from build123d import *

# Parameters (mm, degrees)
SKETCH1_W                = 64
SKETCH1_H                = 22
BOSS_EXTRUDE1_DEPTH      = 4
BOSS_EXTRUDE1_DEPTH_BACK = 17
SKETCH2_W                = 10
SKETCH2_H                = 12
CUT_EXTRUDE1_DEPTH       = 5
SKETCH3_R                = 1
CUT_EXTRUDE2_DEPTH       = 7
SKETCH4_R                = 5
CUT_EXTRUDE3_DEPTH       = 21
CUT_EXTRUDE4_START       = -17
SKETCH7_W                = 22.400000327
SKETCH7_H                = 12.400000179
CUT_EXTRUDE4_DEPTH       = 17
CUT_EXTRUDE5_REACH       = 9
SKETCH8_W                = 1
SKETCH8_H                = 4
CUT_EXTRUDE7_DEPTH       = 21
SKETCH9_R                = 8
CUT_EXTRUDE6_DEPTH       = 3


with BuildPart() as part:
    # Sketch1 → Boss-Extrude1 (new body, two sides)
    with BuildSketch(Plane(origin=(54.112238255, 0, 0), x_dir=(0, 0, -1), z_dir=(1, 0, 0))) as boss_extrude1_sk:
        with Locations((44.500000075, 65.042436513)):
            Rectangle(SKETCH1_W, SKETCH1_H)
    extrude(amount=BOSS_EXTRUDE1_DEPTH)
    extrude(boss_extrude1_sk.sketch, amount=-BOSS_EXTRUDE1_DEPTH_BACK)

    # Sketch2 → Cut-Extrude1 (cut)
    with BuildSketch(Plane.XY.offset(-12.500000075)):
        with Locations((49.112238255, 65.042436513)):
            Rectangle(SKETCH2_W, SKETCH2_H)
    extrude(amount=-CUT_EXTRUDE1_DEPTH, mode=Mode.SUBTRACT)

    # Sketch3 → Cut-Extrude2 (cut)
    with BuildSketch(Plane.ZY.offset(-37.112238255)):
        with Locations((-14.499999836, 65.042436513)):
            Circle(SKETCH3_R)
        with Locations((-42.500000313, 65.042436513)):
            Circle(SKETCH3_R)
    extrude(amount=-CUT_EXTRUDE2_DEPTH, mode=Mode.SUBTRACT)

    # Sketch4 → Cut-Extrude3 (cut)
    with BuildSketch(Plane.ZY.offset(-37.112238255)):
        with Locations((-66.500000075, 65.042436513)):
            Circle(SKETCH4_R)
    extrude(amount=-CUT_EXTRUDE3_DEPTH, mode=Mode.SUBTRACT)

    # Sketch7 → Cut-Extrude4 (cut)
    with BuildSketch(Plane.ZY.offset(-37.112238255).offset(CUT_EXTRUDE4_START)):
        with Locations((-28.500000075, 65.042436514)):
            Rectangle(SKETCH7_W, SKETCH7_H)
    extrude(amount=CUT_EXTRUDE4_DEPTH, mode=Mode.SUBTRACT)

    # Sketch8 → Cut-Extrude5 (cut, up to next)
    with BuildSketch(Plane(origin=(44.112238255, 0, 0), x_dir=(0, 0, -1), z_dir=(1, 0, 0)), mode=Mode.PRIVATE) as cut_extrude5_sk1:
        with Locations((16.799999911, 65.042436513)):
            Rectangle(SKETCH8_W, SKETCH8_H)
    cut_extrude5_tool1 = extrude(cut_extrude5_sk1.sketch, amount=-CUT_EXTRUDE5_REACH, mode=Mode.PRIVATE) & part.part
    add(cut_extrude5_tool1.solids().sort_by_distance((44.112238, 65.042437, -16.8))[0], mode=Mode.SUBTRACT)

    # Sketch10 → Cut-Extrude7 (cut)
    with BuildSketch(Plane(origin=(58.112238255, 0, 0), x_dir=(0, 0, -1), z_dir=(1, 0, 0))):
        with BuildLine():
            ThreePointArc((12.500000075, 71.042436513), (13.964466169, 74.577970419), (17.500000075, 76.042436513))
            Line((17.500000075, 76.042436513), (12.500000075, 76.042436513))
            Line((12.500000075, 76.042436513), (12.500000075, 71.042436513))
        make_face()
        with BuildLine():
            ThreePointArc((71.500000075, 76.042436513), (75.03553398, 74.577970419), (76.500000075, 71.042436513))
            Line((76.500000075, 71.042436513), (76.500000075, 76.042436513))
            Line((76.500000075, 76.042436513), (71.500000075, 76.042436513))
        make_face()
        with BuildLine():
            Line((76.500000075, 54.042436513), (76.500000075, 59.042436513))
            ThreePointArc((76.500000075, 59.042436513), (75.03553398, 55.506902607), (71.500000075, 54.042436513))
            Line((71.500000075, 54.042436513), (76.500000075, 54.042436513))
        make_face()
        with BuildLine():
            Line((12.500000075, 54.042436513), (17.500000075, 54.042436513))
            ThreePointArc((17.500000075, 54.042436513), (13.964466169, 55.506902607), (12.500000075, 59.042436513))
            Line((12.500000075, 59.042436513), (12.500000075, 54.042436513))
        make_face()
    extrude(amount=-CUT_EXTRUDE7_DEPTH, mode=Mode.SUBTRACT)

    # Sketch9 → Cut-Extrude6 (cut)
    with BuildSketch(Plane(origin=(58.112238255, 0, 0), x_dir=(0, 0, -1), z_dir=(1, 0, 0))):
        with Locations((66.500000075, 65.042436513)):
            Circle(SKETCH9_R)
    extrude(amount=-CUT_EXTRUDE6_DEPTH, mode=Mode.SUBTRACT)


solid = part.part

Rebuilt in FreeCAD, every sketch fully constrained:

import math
import FreeCAD as App
import Part
import Sketcher


def add_polygon(sketch, points):
    """Adds a closed chain of lines whose ends are joined by coincident constraints."""
    first, n = sketch.GeometryCount, len(points)
    for a, b in zip(points, points[1:] + points[:1]):
        sketch.addGeometry(Part.LineSegment(App.Vector(*a, 0), App.Vector(*b, 0)), False)
    for i in range(n):
        sketch.addConstraint(Sketcher.Constraint("Coincident", first + i, 2, first + (i + 1) % n, 1))

doc = App.newDocument("Part")
body = doc.addObject("PartDesign::Body", "Body")

# Sketch on YZ plane
sketch1 = body.newObject("Sketcher::SketchObject", "Sketch")
sketch1.AttachmentSupport = (doc.getObject("YZ_Plane"), [""])
sketch1.MapMode = "FlatFace"
sketch1.AttachmentOffset = App.Placement(App.Vector(0, 0, 54.112238), App.Rotation())
add_polygon(sketch1, [(76, -13), (54, -13), (54, -77), (76, -77)])  # lines 0-3
sketch1.addConstraint(Sketcher.Constraint("Horizontal", 0))
sketch1.addConstraint(Sketcher.Constraint("Vertical", 1))
sketch1.addConstraint(Sketcher.Constraint("Horizontal", 2))
sketch1.addConstraint(Sketcher.Constraint("Vertical", 3))
sketch1.addConstraint(Sketcher.Constraint("DistanceX", 0, 2, 0, 1, 22.0))
sketch1.addConstraint(Sketcher.Constraint("DistanceY", 1, 2, 1, 1, 64.0))
sketch1.addConstraint(Sketcher.Constraint("DistanceY", 0, 2, -1, 1, 12.5))
sketch1.addConstraint(Sketcher.Constraint("DistanceX", -1, 1, 0, 2, 54.042437))
pad1 = body.newObject("PartDesign::Pad", "Pad")
pad1.Profile = sketch1
pad1.Type = "TwoLengths"
pad1.Length = 4
pad1.Length2 = 17

# Sketch on XY plane
sketch2 = body.newObject("Sketcher::SketchObject", "Sketch001")
sketch2.AttachmentSupport = (doc.getObject("XY_Plane"), [""])
sketch2.MapMode = "FlatFace"
sketch2.AttachmentOffset = App.Placement(App.Vector(0, 0, -12.5), App.Rotation())
add_polygon(sketch2, [(44, 71), (44, 59), (54, 59), (54, 71)])  # lines 0-3
sketch2.addConstraint(Sketcher.Constraint("Vertical", 0))
sketch2.addConstraint(Sketcher.Constraint("Horizontal", 1))
sketch2.addConstraint(Sketcher.Constraint("Vertical", 2))
sketch2.addConstraint(Sketcher.Constraint("Horizontal", 3))
sketch2.addConstraint(Sketcher.Constraint("DistanceX", 1, 1, 1, 2, 10.0))
sketch2.addConstraint(Sketcher.Constraint("DistanceY", 0, 2, 0, 1, 12.0))
sketch2.addConstraint(Sketcher.Constraint("DistanceX", -1, 1, 0, 2, 44.112238))
sketch2.addConstraint(Sketcher.Constraint("DistanceY", -1, 1, 0, 2, 59.042437))
pocket1 = body.newObject("PartDesign::Pocket", "Pocket")
pocket1.Profile = sketch2
pocket1.Length = 5

# Sketch on YZ plane
sketch3 = body.newObject("Sketcher::SketchObject", "Sketch002")
sketch3.AttachmentSupport = (doc.getObject("YZ_Plane"), [""])
sketch3.MapMode = "FlatFace"
sketch3.AttachmentOffset = App.Placement(App.Vector(0, 0, 37.112238), App.Rotation())
sketch3.addGeometry(Part.Circle(App.Vector(65, -14.5, 0), App.Vector(0, 0, 1), 1), False)
sketch3.addGeometry(Part.Circle(App.Vector(65, -42.5, 0), App.Vector(0, 0, 1), 1), False)
sketch3.addConstraint(Sketcher.Constraint("Equal", 0, 1))
sketch3.addConstraint(Sketcher.Constraint("Vertical", 0, 3, 1, 3))
sketch3.addConstraint(Sketcher.Constraint("Diameter", 0, 2.0))
sketch3.addConstraint(Sketcher.Constraint("DistanceY", 1, 3, 0, 3, 28.0))
sketch3.addConstraint(Sketcher.Constraint("DistanceY", 0, 3, -1, 1, 14.5))
sketch3.addConstraint(Sketcher.Constraint("DistanceX", -1, 1, 0, 3, 65.042437))
pocket2 = body.newObject("PartDesign::Pocket", "Pocket001")
pocket2.Profile = sketch3
pocket2.Length = 7
pocket2.Reversed = True

# Sketch on YZ plane
sketch4 = body.newObject("Sketcher::SketchObject", "Sketch003")
sketch4.AttachmentSupport = (doc.getObject("YZ_Plane"), [""])
sketch4.MapMode = "FlatFace"
sketch4.AttachmentOffset = App.Placement(App.Vector(0, 0, 37.112238), App.Rotation())
sketch4.addGeometry(Part.Circle(App.Vector(65, -67, 0), App.Vector(0, 0, 1), 5), False)
sketch4.addConstraint(Sketcher.Constraint("Diameter", 0, 10.0))
sketch4.addConstraint(Sketcher.Constraint("DistanceY", 0, 3, -1, 1, 66.5))
sketch4.addConstraint(Sketcher.Constraint("DistanceX", -1, 1, 0, 3, 65.042437))
pocket3 = body.newObject("PartDesign::Pocket", "Pocket002")
pocket3.Profile = sketch4
pocket3.Length = 21
pocket3.Reversed = True

# Sketch on YZ plane
sketch5 = body.newObject("Sketcher::SketchObject", "Sketch004")
sketch5.AttachmentSupport = (doc.getObject("YZ_Plane"), [""])
sketch5.MapMode = "FlatFace"
sketch5.AttachmentOffset = App.Placement(App.Vector(0, 0, 54.112238), App.Rotation())
add_polygon(sketch5, [(71, -40), (59, -40), (59, -17), (71, -17)])  # lines 0-3
sketch5.addConstraint(Sketcher.Constraint("Horizontal", 0))
sketch5.addConstraint(Sketcher.Constraint("Vertical", 1))
sketch5.addConstraint(Sketcher.Constraint("Horizontal", 2))
sketch5.addConstraint(Sketcher.Constraint("Vertical", 3))
sketch5.addConstraint(Sketcher.Constraint("DistanceX", 0, 2, 0, 1, 12.4))
sketch5.addConstraint(Sketcher.Constraint("DistanceY", 1, 1, 1, 2, 22.4))
sketch5.addConstraint(Sketcher.Constraint("DistanceY", 0, 2, -1, 1, 39.7))
sketch5.addConstraint(Sketcher.Constraint("DistanceX", -1, 1, 0, 2, 58.842436))
pocket4 = body.newObject("PartDesign::Pocket", "Pocket003")
pocket4.Profile = sketch5
pocket4.Length = 17

# Sketch on YZ plane
sketch6 = body.newObject("Sketcher::SketchObject", "Sketch005")
sketch6.AttachmentSupport = (doc.getObject("YZ_Plane"), [""])
sketch6.MapMode = "FlatFace"
sketch6.AttachmentOffset = App.Placement(App.Vector(0, 0, 44.112238), App.Rotation())
add_polygon(sketch6, [(67, -16.3), (63, -16.3), (63, -17.3), (67, -17.3)])  # lines 0-3
sketch6.addConstraint(Sketcher.Constraint("Horizontal", 0))
sketch6.addConstraint(Sketcher.Constraint("Vertical", 1))
sketch6.addConstraint(Sketcher.Constraint("Horizontal", 2))
sketch6.addConstraint(Sketcher.Constraint("Vertical", 3))
sketch6.addConstraint(Sketcher.Constraint("DistanceX", 0, 2, 0, 1, 4.0))
sketch6.addConstraint(Sketcher.Constraint("DistanceY", 1, 2, 1, 1, 1.0))
sketch6.addConstraint(Sketcher.Constraint("DistanceY", 0, 2, -1, 1, 16.3))
sketch6.addConstraint(Sketcher.Constraint("DistanceX", -1, 1, 0, 2, 63.042437))
pocket5 = body.newObject("PartDesign::Pocket", "Pocket004")
pocket5.Profile = sketch6
pocket5.Type = "UpToFirst"

# Sketch on YZ plane
sketch7 = body.newObject("Sketcher::SketchObject", "Sketch006")
sketch7.AttachmentSupport = (doc.getObject("YZ_Plane"), [""])
sketch7.MapMode = "FlatFace"
sketch7.AttachmentOffset = App.Placement(App.Vector(0, 0, 58.112238), App.Rotation())
sketch7.addGeometry(Part.ArcOfCircle(Part.Circle(App.Vector(71, -17.5, 0), App.Vector(0, 0, 1), 5), math.radians(0), math.radians(90)), False)
sketch7.addGeometry(Part.LineSegment(App.Vector(76, -17.5, 0), App.Vector(76, -12.5, 0)), False)
sketch7.addGeometry(Part.LineSegment(App.Vector(76, -12.5, 0), App.Vector(71, -12.5, 0)), False)
sketch7.addGeometry(Part.ArcOfCircle(Part.Circle(App.Vector(71, -71.5, 0), App.Vector(0, 0, 1), 5), math.radians(-90), math.radians(0)), False)
sketch7.addGeometry(Part.LineSegment(App.Vector(71, -76.5, 0), App.Vector(76, -76.5, 0)), False)
sketch7.addGeometry(Part.LineSegment(App.Vector(76, -76.5, 0), App.Vector(76, -71.5, 0)), False)
sketch7.addGeometry(Part.LineSegment(App.Vector(54, -76.5, 0), App.Vector(59, -76.5, 0)), False)
sketch7.addGeometry(Part.ArcOfCircle(Part.Circle(App.Vector(59, -71.5, 0), App.Vector(0, 0, 1), 5), math.radians(-180), math.radians(-90)), False)
sketch7.addGeometry(Part.LineSegment(App.Vector(54, -71.5, 0), App.Vector(54, -76.5, 0)), False)
sketch7.addGeometry(Part.LineSegment(App.Vector(54, -12.5, 0), App.Vector(54, -17.5, 0)), False)
sketch7.addGeometry(Part.ArcOfCircle(Part.Circle(App.Vector(59, -17.5, 0), App.Vector(0, 0, 1), 5), math.radians(90), math.radians(180)), False)
sketch7.addGeometry(Part.LineSegment(App.Vector(59, -12.5, 0), App.Vector(54, -12.5, 0)), False)
sketch7.addConstraint(Sketcher.Constraint("Tangent", 0, 1, 1, 1))
sketch7.addConstraint(Sketcher.Constraint("Coincident", 1, 2, 2, 1))
sketch7.addConstraint(Sketcher.Constraint("Tangent", 2, 2, 0, 2))
sketch7.addConstraint(Sketcher.Constraint("Tangent", 3, 1, 4, 1))
sketch7.addConstraint(Sketcher.Constraint("Coincident", 4, 2, 5, 1))
sketch7.addConstraint(Sketcher.Constraint("Tangent", 5, 2, 3, 2))
sketch7.addConstraint(Sketcher.Constraint("Tangent", 6, 2, 7, 2))
sketch7.addConstraint(Sketcher.Constraint("Tangent", 7, 1, 8, 1))
sketch7.addConstraint(Sketcher.Constraint("Coincident", 8, 2, 6, 1))
sketch7.addConstraint(Sketcher.Constraint("Tangent", 9, 2, 10, 2))
sketch7.addConstraint(Sketcher.Constraint("Tangent", 10, 1, 11, 1))
sketch7.addConstraint(Sketcher.Constraint("Coincident", 11, 2, 9, 1))
sketch7.addConstraint(Sketcher.Constraint("Vertical", 1))
sketch7.addConstraint(Sketcher.Constraint("Horizontal", 2))
sketch7.addConstraint(Sketcher.Constraint("Horizontal", 4))
sketch7.addConstraint(Sketcher.Constraint("Vertical", 5))
sketch7.addConstraint(Sketcher.Constraint("Horizontal", 6))
sketch7.addConstraint(Sketcher.Constraint("Vertical", 8))
sketch7.addConstraint(Sketcher.Constraint("Vertical", 9))
sketch7.addConstraint(Sketcher.Constraint("Horizontal", 11))
sketch7.addConstraint(Sketcher.Constraint("Equal", 0, 3))
sketch7.addConstraint(Sketcher.Constraint("Equal", 3, 7))
sketch7.addConstraint(Sketcher.Constraint("Equal", 7, 10))
sketch7.addConstraint(Sketcher.Constraint("Horizontal", 3, 3, 7, 3))
sketch7.addConstraint(Sketcher.Constraint("Horizontal", 0, 3, 10, 3))
sketch7.addConstraint(Sketcher.Constraint("Vertical", 0, 3, 3, 3))
sketch7.addConstraint(Sketcher.Constraint("Vertical", 7, 3, 10, 3))
sketch7.addConstraint(Sketcher.Constraint("Radius", 0, 5.0))
sketch7.addConstraint(Sketcher.Constraint("DistanceY", 3, 3, 0, 3, 54.0))
sketch7.addConstraint(Sketcher.Constraint("DistanceX", 7, 3, 3, 3, 12.0))
sketch7.addConstraint(Sketcher.Constraint("DistanceY", 0, 3, -1, 1, 17.5))
sketch7.addConstraint(Sketcher.Constraint("DistanceX", -1, 1, 0, 3, 71.042437))
pocket6 = body.newObject("PartDesign::Pocket", "Pocket005")
pocket6.Profile = sketch7
pocket6.Length = 21

# Sketch on YZ plane
sketch8 = body.newObject("Sketcher::SketchObject", "Sketch007")
sketch8.AttachmentSupport = (doc.getObject("YZ_Plane"), [""])
sketch8.MapMode = "FlatFace"
sketch8.AttachmentOffset = App.Placement(App.Vector(0, 0, 58.112238), App.Rotation())
sketch8.addGeometry(Part.Circle(App.Vector(65, -67, 0), App.Vector(0, 0, 1), 8), False)
sketch8.addConstraint(Sketcher.Constraint("Diameter", 0, 16.0))
sketch8.addConstraint(Sketcher.Constraint("DistanceY", 0, 3, -1, 1, 66.5))
sketch8.addConstraint(Sketcher.Constraint("DistanceX", -1, 1, 0, 3, 65.042437))
pocket7 = body.newObject("PartDesign::Pocket", "Pocket006")
pocket7.Profile = sketch8
pocket7.Length = 3

doc.recompute()
